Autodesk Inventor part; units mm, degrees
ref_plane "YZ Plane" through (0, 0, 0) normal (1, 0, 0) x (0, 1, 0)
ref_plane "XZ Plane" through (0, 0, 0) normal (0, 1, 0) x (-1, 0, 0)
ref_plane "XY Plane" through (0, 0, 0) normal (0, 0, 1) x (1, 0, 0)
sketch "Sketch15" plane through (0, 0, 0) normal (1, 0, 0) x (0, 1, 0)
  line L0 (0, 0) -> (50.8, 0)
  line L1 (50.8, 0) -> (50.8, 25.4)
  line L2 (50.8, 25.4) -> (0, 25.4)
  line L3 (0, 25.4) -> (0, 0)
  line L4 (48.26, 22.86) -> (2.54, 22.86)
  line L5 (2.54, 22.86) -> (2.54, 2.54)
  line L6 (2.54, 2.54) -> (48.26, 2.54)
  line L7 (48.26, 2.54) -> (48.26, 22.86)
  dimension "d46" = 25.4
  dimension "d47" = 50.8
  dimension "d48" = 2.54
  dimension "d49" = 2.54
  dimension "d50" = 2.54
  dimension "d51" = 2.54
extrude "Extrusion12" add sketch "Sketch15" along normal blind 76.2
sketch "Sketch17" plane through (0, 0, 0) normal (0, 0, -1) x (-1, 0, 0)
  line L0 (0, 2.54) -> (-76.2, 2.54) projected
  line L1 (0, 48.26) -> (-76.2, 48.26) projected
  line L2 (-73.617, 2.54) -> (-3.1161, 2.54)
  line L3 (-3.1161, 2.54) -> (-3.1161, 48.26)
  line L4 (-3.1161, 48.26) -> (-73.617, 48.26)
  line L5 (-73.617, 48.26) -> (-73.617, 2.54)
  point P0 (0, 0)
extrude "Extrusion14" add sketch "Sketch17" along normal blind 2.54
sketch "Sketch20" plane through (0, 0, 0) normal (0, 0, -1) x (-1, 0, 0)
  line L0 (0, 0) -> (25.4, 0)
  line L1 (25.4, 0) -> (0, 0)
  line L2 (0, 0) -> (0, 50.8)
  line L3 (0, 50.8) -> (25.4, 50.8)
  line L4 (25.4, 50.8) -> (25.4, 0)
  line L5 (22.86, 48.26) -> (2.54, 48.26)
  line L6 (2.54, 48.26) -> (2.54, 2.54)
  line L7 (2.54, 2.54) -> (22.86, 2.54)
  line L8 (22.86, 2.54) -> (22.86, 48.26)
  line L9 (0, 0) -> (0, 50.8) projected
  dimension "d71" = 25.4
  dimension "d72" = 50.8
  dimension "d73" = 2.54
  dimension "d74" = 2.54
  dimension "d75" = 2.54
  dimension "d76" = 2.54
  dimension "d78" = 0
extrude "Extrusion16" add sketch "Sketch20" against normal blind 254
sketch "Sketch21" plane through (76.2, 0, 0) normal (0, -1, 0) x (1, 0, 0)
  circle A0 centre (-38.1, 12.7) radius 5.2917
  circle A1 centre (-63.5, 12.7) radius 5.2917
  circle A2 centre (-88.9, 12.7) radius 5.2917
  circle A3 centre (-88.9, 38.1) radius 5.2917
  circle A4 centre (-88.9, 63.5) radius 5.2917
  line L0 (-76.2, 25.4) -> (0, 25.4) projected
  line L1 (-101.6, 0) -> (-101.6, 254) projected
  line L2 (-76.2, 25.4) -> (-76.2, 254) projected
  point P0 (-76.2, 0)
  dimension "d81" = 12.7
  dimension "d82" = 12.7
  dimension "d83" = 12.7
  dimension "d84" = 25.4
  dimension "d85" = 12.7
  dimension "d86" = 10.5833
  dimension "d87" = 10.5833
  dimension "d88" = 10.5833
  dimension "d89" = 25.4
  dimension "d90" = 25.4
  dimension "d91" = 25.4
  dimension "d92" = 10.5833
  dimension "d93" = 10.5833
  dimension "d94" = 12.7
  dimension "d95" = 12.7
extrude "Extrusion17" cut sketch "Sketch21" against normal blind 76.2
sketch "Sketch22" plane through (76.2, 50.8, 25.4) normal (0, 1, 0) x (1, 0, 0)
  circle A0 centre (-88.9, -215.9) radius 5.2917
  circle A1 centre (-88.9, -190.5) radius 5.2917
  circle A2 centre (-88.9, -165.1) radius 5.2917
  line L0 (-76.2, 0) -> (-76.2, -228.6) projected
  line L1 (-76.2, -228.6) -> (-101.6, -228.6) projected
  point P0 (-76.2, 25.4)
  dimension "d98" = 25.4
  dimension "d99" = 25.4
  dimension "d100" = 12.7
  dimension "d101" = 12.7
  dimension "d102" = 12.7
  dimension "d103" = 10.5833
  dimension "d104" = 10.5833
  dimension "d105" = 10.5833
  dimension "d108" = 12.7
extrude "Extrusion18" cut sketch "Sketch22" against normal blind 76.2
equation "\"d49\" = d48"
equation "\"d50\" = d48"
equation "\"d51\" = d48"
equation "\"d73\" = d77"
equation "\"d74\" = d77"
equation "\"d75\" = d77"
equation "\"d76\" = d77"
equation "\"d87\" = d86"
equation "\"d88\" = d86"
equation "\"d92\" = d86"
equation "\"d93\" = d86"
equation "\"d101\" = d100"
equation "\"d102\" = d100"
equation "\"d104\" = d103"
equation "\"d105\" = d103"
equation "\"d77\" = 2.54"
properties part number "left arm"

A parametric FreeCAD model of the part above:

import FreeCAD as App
import Part
import Sketcher
from FreeCAD import Vector
Q = App.Units.Quantity

doc = App.newDocument("Part")
body = doc.addObject("PartDesign::Body", "Body")

# Sketch on YZ plane
sketch1 = body.newObject("Sketcher::SketchObject", "Sketch")
sketch1.AttachmentSupport = (doc.getObject("YZ_Plane"), [""])
sketch1.MapMode = "FlatFace"
sketch1.addGeometry([
    Part.LineSegment(Vector(0, 25, 0), Vector(0, 0, 0)),  # 0
    Part.LineSegment(Vector(0, 0, 0), Vector(51, 0, 0)),  # 1
    Part.LineSegment(Vector(51, 0, 0), Vector(51, 25, 0)),  # 2
    Part.LineSegment(Vector(51, 25, 0), Vector(0, 25, 0)),  # 3
    Part.LineSegment(Vector(3, 23, 0), Vector(48, 23, 0)),  # 4
    Part.LineSegment(Vector(48, 23, 0), Vector(48, 3, 0)),  # 5
    Part.LineSegment(Vector(48, 3, 0), Vector(3, 3, 0)),  # 6
    Part.LineSegment(Vector(3, 3, 0), Vector(3, 23, 0)),  # 7
], False)
sketch1.addConstraint([
    Sketcher.Constraint("Coincident", 0, 2, 1, 1),
    Sketcher.Constraint("Coincident", 1, 2, 2, 1),
    Sketcher.Constraint("Coincident", 2, 2, 3, 1),
    Sketcher.Constraint("Coincident", 3, 2, 0, 1),
    Sketcher.Constraint("Coincident", 4, 2, 5, 1),
    Sketcher.Constraint("Coincident", 5, 2, 6, 1),
    Sketcher.Constraint("Coincident", 6, 2, 7, 1),
    Sketcher.Constraint("Coincident", 7, 2, 4, 1),
    Sketcher.Constraint("Vertical", 0),
    Sketcher.Constraint("Horizontal", 1),
    Sketcher.Constraint("Vertical", 2),
    Sketcher.Constraint("Horizontal", 3),
    Sketcher.Constraint("Horizontal", 4),
    Sketcher.Constraint("Vertical", 5),
    Sketcher.Constraint("Horizontal", 6),
    Sketcher.Constraint("Vertical", 7),
    Sketcher.Constraint("Coincident", 0, 2, -1, 1),
    Sketcher.Constraint("DistanceX", 1, 1, 1, 2, Q("2 in")),
    Sketcher.Constraint("DistanceY", 0, 2, 0, 1, Q("1 in")),
    Sketcher.Constraint("DistanceY", -1, 1, 5, 2, Q("0.1 in")),
    Sketcher.Constraint("DistanceX", -1, 1, 6, 2, Q("0.1 in")),
    Sketcher.Constraint("DistanceX", 4, 2, 2, 2, Q("0.1 in")),
    Sketcher.Constraint("DistanceY", 4, 2, 2, 2, Q("0.1 in")),
])
pad1 = body.newObject("PartDesign::Pad", "Pad")
pad1.Profile = sketch1
pad1.Length = Q("3 in")

# Sketch on XY plane
sketch2 = body.newObject("Sketcher::SketchObject", "Sketch001")
sketch2.AttachmentSupport = (doc.getObject("XY_Plane"), [""])
sketch2.MapMode = "FlatFace"
sketch2.addGeometry([
    Part.LineSegment(Vector(74, 3, 0), Vector(3, 3, 0)),
    Part.LineSegment(Vector(3, 3, 0), Vector(3, 48, 0)),
    Part.LineSegment(Vector(3, 48, 0), Vector(74, 48, 0)),
    Part.LineSegment(Vector(74, 48, 0), Vector(74, 3, 0)),
], False)
sketch2.addConstraint([
    Sketcher.Constraint("Coincident", 0, 2, 1, 1),
    Sketcher.Constraint("Coincident", 1, 2, 2, 1),
    Sketcher.Constraint("Coincident", 2, 2, 3, 1),
    Sketcher.Constraint("Coincident", 3, 2, 0, 1),
    Sketcher.Constraint("Horizontal", 0),
    Sketcher.Constraint("Vertical", 1),
    Sketcher.Constraint("Horizontal", 2),
    Sketcher.Constraint("Vertical", 3),
    Sketcher.Constraint("DistanceY", 1, 1, 1, 2, Q("1.8 in")),
    Sketcher.Constraint("DistanceY", -1, 1, 0, 2, Q("0.1 in")),
    Sketcher.Constraint("DistanceX", 0, 2, 0, 1, 70.501),
    Sketcher.Constraint("DistanceX", -1, 1, 2, 2, Q("2.8983 in")),
])
pad2 = body.newObject("PartDesign::Pad", "Pad001")
pad2.Profile = sketch2
pad2.Length = Q("0.1 in")
pad2.Reversed = True

# Sketch on XY plane
sketch3 = body.newObject("Sketcher::SketchObject", "Sketch002")
sketch3.AttachmentSupport = (doc.getObject("XY_Plane"), [""])
sketch3.MapMode = "FlatFace"
sketch3.addGeometry([
    Part.LineSegment(Vector(0, 51, 0), Vector(0, 0, 0)),  # 0
    Part.LineSegment(Vector(0, 0, 0), Vector(-25, 0, 0)),  # 1
    Part.LineSegment(Vector(-25, 0, 0), Vector(-25, 51, 0)),  # 2
    Part.LineSegment(Vector(-25, 51, 0), Vector(0, 51, 0)),  # 3
    Part.LineSegment(Vector(-3, 48, 0), Vector(-23, 48, 0)),  # 4
    Part.LineSegment(Vector(-23, 48, 0), Vector(-23, 3, 0)),  # 5
    Part.LineSegment(Vector(-23, 3, 0), Vector(-3, 3, 0)),  # 6
    Part.LineSegment(Vector(-3, 3, 0), Vector(-3, 48, 0)),  # 7
], False)
sketch3.addConstraint([
    Sketcher.Constraint("Coincident", 0, 2, 1, 1),
    Sketcher.Constraint("Coincident", 1, 2, 2, 1),
    Sketcher.Constraint("Coincident", 2, 2, 3, 1),
    Sketcher.Constraint("Coincident", 3, 2, 0, 1),
    Sketcher.Constraint("Coincident", 4, 2, 5, 1),
    Sketcher.Constraint("Coincident", 5, 2, 6, 1),
    Sketcher.Constraint("Coincident", 6, 2, 7, 1),
    Sketcher.Constraint("Coincident", 7, 2, 4, 1),
    Sketcher.Constraint("Vertical", 0),
    Sketcher.Constraint("Horizontal", 1),
    Sketcher.Constraint("Vertical", 2),
    Sketcher.Constraint("Horizontal", 3),
    Sketcher.Constraint("Horizontal", 4),
    Sketcher.Constraint("Vertical", 5),
    Sketcher.Constraint("Horizontal", 6),
    Sketcher.Constraint("Vertical", 7),
    Sketcher.Constraint("Coincident", 0, 2, -1, 1),
    Sketcher.Constraint("DistanceX", 1, 2, 1, 1, Q("1 in")),
    Sketcher.Constraint("DistanceY", 0, 2, 0, 1, Q("2 in")),
    Sketcher.Constraint("DistanceY", -1, 1, 5, 2, Q("0.1 in")),
    Sketcher.Constraint("DistanceX", 6, 2, -1, 1, Q("0.1 in")),
    Sketcher.Constraint("DistanceX", 2, 2, 4, 2, Q("0.1 in")),
    Sketcher.Constraint("DistanceY", 4, 2, 2, 2, Q("0.1 in")),
])
pad3 = body.newObject("PartDesign::Pad", "Pad002")
pad3.Profile = sketch3
pad3.Length = Q("10 in")

# Sketch on XZ plane
sketch4 = body.newObject("Sketcher::SketchObject", "Sketch003")
sketch4.AttachmentSupport = (doc.getObject("XZ_Plane"), [""])
sketch4.MapMode = "FlatFace"
sketch4.addGeometry([
    Part.Circle(Vector(38, 13, 0), Vector(0, 0, 1), 5),  # 0
    Part.Circle(Vector(13, 13, 0), Vector(0, 0, 1), 5),  # 1
    Part.Circle(Vector(-13, 13, 0), Vector(0, 0, 1), 5),  # 2
    Part.Circle(Vector(-13, 38, 0), Vector(0, 0, 1), 5),  # 3
    Part.Circle(Vector(-13, 64, 0), Vector(0, 0, 1), 5),  # 4
], False)
sketch4.addConstraint([
    Sketcher.Constraint("Equal", 0, 1),
    Sketcher.Constraint("Equal", 1, 2),
    Sketcher.Constraint("Equal", 2, 3),
    Sketcher.Constraint("Equal", 3, 4),
    Sketcher.Constraint("Symmetric", 1, 3, 2, 3, -2),
    Sketcher.Constraint("Horizontal", 0, 3, 1, 3),
    Sketcher.Constraint("Vertical", 2, 3, 3, 3),
    Sketcher.Constraint("Vertical", 3, 3, 4, 3),
    Sketcher.Constraint("DistanceX", 1, 3, 0, 3, Q("1 in")),
    Sketcher.Constraint("DistanceX", 2, 3, 1, 3, Q("1 in")),
    Sketcher.Constraint("DistanceY", 2, 3, 3, 3, Q("1 in")),
    Sketcher.Constraint("DistanceY", 3, 3, 4, 3, Q("1 in")),
    Sketcher.Constraint("DistanceY", -1, 1, 0, 3, Q("0.5 in")),
    Sketcher.Constraint("Diameter", 0, 10.5834),
])
pocket1 = body.newObject("PartDesign::Pocket", "Pocket")
pocket1.Profile = sketch4
pocket1.Length = Q("3 in")

# Sketch on XZ plane
sketch5 = body.newObject("Sketcher::SketchObject", "Sketch004")
sketch5.AttachmentSupport = (doc.getObject("XZ_Plane"), [""])
sketch5.MapMode = "FlatFace"
sketch5.AttachmentOffset = App.Placement(Vector(0, 0, -2 * 25.4), App.Rotation())
sketch5.addGeometry([
    Part.Circle(Vector(-13, 241, 0), Vector(0, 0, 1), 5),
    Part.Circle(Vector(-13, 216, 0), Vector(0, 0, 1), 5),
    Part.Circle(Vector(-13, 190, 0), Vector(0, 0, 1), 5),
], False)
sketch5.addConstraint([
    Sketcher.Constraint("Equal", 0, 1),
    Sketcher.Constraint("Equal", 1, 2),
    Sketcher.Constraint("Vertical", 0, 3, 1, 3),
    Sketcher.Constraint("Vertical", 1, 3, 2, 3),
    Sketcher.Constraint("DistanceY", 1, 3, 0, 3, Q("1 in")),
    Sketcher.Constraint("DistanceY", 2, 3, 1, 3, Q("1 in")),
    Sketcher.Constraint("DistanceX", 0, 3, -1, 1, Q("0.5 in")),
    Sketcher.Constraint("Diameter", 0, 10.5834),
    Sketcher.Constraint("DistanceY", -1, 1, 0, 3, Q("9.5 in")),
])
pocket2 = body.newObject("PartDesign::Pocket", "Pocket001")
pocket2.Profile = sketch5
pocket2.Length = Q("3 in")
pocket2.Reversed = True

doc.recompute()
